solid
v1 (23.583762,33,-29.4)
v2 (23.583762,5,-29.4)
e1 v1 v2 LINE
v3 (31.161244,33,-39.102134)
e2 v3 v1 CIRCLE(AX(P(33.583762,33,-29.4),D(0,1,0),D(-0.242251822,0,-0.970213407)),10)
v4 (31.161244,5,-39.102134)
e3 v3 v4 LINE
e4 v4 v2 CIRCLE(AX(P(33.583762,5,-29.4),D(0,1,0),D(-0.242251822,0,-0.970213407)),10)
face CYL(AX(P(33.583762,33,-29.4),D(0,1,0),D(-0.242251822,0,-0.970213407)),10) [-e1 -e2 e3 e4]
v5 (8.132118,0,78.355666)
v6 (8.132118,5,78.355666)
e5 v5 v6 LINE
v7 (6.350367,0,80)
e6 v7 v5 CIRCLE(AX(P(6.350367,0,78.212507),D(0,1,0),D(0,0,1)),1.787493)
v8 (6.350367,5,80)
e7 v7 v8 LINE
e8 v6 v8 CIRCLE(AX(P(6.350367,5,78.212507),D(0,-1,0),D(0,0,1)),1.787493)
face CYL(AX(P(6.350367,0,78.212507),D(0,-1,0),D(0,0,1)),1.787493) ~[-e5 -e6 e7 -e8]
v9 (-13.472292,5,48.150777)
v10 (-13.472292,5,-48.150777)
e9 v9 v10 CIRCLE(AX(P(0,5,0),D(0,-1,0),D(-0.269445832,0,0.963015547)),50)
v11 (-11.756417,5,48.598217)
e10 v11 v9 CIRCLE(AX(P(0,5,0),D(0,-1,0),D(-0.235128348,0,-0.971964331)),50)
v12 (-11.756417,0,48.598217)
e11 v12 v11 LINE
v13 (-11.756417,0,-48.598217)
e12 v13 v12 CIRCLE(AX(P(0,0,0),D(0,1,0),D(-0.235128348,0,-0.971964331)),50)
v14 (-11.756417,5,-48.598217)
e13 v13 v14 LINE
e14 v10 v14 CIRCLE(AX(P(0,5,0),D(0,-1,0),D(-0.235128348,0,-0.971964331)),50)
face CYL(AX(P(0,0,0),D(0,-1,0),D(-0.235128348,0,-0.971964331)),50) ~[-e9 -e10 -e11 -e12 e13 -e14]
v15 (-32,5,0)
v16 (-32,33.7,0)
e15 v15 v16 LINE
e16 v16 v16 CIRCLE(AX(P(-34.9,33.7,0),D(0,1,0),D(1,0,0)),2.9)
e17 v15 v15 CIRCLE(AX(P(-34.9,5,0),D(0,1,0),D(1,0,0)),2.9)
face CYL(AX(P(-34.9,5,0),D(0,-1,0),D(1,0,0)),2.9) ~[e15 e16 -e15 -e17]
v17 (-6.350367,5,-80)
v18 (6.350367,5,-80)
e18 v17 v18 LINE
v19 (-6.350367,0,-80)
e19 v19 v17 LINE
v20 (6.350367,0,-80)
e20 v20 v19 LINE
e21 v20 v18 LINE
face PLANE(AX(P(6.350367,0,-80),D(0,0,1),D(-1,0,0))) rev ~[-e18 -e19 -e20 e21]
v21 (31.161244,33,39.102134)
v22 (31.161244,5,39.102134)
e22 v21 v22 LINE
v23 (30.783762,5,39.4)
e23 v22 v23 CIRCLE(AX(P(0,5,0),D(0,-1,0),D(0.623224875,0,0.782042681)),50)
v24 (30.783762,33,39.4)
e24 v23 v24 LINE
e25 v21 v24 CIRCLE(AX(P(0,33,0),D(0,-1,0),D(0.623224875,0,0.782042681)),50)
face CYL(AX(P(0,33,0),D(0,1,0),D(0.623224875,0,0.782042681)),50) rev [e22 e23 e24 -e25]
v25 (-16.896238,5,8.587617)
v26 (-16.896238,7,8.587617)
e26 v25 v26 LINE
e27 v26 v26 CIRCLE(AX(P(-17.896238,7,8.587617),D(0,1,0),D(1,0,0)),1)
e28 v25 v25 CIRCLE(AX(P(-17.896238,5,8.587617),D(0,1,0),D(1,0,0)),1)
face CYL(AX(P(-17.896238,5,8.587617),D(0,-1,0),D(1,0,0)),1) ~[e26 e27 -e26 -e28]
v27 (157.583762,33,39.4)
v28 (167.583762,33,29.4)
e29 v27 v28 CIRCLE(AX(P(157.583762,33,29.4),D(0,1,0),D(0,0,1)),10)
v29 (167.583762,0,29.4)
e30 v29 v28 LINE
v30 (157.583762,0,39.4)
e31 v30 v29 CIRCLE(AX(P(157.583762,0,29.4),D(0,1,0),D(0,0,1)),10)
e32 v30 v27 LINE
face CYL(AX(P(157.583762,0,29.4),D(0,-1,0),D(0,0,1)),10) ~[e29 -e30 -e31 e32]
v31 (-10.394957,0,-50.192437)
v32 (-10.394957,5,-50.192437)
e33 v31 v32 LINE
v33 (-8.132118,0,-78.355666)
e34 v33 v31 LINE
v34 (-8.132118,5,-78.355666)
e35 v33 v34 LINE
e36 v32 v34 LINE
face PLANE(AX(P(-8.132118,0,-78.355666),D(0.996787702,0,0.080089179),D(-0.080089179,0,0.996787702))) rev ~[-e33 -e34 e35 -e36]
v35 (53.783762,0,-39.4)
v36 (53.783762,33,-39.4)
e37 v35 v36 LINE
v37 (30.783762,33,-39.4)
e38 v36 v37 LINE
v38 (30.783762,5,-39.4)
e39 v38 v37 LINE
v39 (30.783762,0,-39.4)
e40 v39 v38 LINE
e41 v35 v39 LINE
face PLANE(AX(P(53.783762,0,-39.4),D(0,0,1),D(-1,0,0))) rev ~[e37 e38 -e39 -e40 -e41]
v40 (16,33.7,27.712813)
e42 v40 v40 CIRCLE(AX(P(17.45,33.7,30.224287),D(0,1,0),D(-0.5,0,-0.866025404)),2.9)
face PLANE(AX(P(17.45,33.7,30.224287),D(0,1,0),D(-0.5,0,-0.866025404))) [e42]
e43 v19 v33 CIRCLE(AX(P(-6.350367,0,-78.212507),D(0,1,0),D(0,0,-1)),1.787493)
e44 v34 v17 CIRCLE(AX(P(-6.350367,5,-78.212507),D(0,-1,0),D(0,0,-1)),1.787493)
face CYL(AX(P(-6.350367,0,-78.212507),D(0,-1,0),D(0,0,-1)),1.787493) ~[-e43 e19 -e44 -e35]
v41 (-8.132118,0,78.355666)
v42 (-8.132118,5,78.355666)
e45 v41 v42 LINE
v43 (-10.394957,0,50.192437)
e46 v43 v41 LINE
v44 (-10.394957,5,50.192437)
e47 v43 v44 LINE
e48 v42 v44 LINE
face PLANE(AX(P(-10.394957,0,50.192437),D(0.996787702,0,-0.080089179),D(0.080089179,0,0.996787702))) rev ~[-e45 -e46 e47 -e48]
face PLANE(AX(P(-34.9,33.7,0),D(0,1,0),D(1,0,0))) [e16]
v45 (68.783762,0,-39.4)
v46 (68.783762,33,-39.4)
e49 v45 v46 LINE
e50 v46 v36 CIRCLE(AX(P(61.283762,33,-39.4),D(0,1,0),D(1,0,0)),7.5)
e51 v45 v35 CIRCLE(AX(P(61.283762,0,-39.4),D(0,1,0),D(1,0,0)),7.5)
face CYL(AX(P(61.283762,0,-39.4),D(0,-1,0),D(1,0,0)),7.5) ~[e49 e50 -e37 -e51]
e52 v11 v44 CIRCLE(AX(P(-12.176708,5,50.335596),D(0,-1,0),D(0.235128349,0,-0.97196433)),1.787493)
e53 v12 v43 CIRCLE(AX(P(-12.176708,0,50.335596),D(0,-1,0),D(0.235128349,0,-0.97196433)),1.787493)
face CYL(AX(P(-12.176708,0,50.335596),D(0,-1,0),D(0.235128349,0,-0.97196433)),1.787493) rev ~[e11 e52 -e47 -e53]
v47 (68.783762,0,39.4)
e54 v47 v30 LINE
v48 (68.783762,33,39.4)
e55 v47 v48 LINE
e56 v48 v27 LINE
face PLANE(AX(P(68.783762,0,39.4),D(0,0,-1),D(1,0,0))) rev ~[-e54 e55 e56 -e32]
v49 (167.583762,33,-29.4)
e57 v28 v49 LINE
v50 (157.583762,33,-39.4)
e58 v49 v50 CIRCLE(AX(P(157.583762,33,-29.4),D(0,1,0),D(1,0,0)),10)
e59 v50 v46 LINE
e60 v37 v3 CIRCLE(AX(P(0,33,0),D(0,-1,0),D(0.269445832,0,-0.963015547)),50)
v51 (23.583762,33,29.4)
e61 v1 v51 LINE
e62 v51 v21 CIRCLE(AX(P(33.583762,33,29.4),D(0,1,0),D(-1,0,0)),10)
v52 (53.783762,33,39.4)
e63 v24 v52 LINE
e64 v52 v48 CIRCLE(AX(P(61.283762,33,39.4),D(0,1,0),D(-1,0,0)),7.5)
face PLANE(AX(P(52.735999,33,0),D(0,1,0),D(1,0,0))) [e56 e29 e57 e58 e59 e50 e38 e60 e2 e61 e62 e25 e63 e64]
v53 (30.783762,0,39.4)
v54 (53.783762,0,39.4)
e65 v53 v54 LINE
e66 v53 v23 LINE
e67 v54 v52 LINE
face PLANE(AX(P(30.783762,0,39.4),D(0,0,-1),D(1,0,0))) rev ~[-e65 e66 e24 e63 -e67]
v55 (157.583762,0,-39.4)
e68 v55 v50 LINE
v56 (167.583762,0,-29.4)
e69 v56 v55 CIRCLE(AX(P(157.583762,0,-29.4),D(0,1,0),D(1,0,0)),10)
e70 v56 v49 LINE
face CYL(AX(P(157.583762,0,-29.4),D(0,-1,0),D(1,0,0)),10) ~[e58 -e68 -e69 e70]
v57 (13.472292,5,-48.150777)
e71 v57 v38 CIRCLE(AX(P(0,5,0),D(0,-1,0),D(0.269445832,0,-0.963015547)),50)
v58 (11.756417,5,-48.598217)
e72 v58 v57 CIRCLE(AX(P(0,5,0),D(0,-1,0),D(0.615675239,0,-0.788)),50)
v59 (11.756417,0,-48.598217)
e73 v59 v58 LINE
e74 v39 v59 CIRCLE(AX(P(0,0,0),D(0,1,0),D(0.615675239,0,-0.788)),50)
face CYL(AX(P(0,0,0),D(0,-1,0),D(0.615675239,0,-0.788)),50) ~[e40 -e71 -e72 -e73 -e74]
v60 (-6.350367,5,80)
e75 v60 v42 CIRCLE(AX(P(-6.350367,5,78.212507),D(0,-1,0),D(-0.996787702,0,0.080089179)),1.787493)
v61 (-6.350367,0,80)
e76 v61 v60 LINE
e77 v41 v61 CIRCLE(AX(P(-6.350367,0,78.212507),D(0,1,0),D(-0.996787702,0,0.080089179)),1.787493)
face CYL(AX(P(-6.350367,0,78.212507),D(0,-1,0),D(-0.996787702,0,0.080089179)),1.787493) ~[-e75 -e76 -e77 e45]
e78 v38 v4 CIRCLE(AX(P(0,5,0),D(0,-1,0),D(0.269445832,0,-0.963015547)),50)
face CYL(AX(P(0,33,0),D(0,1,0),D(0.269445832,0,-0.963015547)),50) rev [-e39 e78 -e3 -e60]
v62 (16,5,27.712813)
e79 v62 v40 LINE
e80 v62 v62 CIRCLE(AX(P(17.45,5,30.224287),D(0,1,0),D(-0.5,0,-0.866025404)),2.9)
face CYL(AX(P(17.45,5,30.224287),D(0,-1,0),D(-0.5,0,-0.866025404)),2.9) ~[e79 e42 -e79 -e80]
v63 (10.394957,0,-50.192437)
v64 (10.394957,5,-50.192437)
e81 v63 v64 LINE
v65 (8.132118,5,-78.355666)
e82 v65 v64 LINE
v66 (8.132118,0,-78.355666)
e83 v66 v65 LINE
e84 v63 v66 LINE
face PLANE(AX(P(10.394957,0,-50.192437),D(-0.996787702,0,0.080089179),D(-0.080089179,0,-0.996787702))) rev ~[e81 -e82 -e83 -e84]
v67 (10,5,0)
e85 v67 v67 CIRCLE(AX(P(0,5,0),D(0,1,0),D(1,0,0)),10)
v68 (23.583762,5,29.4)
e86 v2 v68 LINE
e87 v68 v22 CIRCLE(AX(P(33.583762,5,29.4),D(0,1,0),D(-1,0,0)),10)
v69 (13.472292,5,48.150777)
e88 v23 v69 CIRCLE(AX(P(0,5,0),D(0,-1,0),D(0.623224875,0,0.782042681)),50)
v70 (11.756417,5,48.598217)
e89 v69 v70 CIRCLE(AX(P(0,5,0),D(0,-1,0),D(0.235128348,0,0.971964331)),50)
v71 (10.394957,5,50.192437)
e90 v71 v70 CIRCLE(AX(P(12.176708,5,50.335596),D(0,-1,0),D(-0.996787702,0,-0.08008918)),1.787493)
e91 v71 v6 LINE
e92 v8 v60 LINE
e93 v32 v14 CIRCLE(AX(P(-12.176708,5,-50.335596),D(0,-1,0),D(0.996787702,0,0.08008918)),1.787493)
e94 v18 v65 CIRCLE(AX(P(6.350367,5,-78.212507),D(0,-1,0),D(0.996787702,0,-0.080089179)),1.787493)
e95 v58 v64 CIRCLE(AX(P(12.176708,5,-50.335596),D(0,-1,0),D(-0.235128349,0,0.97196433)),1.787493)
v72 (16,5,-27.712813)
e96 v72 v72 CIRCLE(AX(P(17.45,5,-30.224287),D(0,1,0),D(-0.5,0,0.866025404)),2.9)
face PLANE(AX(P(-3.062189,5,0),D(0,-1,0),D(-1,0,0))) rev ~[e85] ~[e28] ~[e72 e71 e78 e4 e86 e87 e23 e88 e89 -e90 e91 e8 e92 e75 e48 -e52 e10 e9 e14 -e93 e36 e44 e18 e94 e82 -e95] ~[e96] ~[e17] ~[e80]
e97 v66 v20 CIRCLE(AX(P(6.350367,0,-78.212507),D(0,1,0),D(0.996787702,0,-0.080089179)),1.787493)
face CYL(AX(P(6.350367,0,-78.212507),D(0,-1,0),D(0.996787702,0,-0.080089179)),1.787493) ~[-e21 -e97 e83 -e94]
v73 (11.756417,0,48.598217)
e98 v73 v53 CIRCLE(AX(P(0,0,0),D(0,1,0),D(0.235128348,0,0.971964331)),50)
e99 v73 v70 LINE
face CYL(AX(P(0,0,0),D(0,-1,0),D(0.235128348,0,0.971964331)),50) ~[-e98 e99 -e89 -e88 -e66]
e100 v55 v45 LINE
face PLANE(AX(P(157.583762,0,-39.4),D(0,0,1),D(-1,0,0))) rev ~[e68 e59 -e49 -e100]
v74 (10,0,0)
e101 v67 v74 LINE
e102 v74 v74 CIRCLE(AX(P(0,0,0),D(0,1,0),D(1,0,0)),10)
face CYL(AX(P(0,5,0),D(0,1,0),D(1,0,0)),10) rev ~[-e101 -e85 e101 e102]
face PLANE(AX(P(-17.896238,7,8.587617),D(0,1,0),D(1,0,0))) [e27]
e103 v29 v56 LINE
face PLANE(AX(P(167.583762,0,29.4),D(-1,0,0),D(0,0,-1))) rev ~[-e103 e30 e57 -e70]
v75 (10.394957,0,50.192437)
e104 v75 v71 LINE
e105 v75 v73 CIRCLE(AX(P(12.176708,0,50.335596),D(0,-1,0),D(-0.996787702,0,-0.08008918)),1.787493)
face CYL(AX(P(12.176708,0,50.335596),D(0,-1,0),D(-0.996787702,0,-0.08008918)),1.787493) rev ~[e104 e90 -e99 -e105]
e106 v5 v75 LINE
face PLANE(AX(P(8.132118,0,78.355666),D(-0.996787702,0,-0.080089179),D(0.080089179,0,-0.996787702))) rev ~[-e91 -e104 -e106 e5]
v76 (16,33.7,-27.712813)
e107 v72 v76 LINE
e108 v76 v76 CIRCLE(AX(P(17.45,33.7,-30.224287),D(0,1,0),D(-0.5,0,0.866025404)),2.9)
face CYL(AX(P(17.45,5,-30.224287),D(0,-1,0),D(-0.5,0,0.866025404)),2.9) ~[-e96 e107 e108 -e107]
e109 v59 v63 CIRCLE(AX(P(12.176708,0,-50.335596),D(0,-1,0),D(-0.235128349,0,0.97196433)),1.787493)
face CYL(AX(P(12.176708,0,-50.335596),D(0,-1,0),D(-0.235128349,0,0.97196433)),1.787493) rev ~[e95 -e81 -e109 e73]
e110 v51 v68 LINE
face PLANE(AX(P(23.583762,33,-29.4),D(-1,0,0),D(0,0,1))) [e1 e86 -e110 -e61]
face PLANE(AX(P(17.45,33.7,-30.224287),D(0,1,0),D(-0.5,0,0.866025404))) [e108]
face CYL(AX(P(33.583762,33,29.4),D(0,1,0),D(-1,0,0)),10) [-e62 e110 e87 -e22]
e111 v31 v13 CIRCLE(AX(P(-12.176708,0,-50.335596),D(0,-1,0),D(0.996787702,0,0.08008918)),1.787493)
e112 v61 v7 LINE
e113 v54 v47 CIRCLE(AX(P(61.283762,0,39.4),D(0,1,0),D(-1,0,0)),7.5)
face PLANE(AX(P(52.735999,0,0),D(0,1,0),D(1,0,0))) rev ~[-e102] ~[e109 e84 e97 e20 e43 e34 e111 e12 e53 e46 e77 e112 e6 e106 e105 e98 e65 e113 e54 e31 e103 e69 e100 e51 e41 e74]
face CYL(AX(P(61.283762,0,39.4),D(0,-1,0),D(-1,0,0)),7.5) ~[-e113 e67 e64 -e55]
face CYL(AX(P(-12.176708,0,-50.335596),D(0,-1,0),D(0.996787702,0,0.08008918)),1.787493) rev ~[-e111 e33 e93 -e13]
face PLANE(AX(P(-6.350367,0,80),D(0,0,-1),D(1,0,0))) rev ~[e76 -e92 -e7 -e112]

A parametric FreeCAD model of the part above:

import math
import FreeCAD as App
import Part
import Sketcher
from FreeCAD import Vector

doc = App.newDocument("Part")
body = doc.addObject("PartDesign::Body", "Body")

# Sketch on XZ plane
sketch1 = body.newObject("Sketcher::SketchObject", "Sketch")
sketch1.AttachmentSupport = (doc.getObject("XZ_Plane"), [""])
sketch1.MapMode = "FlatFace"
sketch1.addGeometry([
    Part.LineSegment(Vector(68.8, 39.4, 0), Vector(157.6, 39.4, 0)),  # 0
    Part.ArcOfCircle(Part.Circle(Vector(157.6, 29.4, 0), Vector(0, 0, 1), 10), math.radians(0), math.radians(90)),  # 1
    Part.LineSegment(Vector(167.6, 29.4, 0), Vector(167.6, -29.4, 0)),  # 2
    Part.ArcOfCircle(Part.Circle(Vector(157.6, -29.4, 0), Vector(0, 0, 1), 10), math.radians(-90), math.radians(0)),  # 3
    Part.LineSegment(Vector(157.6, -39.4, 0), Vector(68.8, -39.4, 0)),  # 4
    Part.ArcOfCircle(Part.Circle(Vector(61.3, -39.4, 0), Vector(0, 0, 1), 7.5), math.radians(180), math.radians(360)),  # 5
    Part.LineSegment(Vector(53.8, -39.4, 0), Vector(30.8, -39.4, 0)),  # 6
    Part.ArcOfCircle(Part.Circle(Vector(0, 0, 0), Vector(0, 0, 1), 50), math.radians(-76), math.radians(-52)),  # 7
    Part.ArcOfCircle(Part.Circle(Vector(12.2, -50.3, 0), Vector(0, 0, 1), 1.8), math.radians(104), math.radians(175)),  # 8
    Part.LineSegment(Vector(10.4, -50.2, 0), Vector(8.1, -78.4, 0)),  # 9
    Part.ArcOfCircle(Part.Circle(Vector(6.4, -78.2, 0), Vector(0, 0, 1), 1.8), math.radians(-90), math.radians(-5)),  # 10
    Part.LineSegment(Vector(6.4, -80, 0), Vector(-6.4, -80, 0)),  # 11
    Part.ArcOfCircle(Part.Circle(Vector(-6.4, -78.2, 0), Vector(0, 0, 1), 1.8), math.radians(-175), math.radians(-90)),  # 12
    Part.LineSegment(Vector(-8.1, -78.4, 0), Vector(-10.4, -50.2, 0)),  # 13
    Part.ArcOfCircle(Part.Circle(Vector(-12.2, -50.3, 0), Vector(0, 0, 1), 1.8), math.radians(5), math.radians(76)),  # 14
    Part.ArcOfCircle(Part.Circle(Vector(0, 0, 0), Vector(0, 0, 1), 50), math.radians(104), math.radians(256)),  # 15
    Part.ArcOfCircle(Part.Circle(Vector(-12.2, 50.3, 0), Vector(0, 0, 1), 1.8), math.radians(-76), math.radians(-5)),  # 16
    Part.LineSegment(Vector(-10.4, 50.2, 0), Vector(-8.1, 78.4, 0)),  # 17
    Part.ArcOfCircle(Part.Circle(Vector(-6.4, 78.2, 0), Vector(0, 0, 1), 1.8), math.radians(90), math.radians(175)),  # 18
    Part.LineSegment(Vector(-6.4, 80, 0), Vector(6.4, 80, 0)),  # 19
    Part.ArcOfCircle(Part.Circle(Vector(6.4, 78.2, 0), Vector(0, 0, 1), 1.8), math.radians(5), math.radians(90)),  # 20
    Part.LineSegment(Vector(8.1, 78.4, 0), Vector(10.4, 50.2, 0)),  # 21
    Part.ArcOfCircle(Part.Circle(Vector(12.2, 50.3, 0), Vector(0, 0, 1), 1.8), math.radians(-175), math.radians(-104)),  # 22
    Part.ArcOfCircle(Part.Circle(Vector(0, 0, 0), Vector(0, 0, 1), 50), math.radians(52), math.radians(76)),  # 23
    Part.LineSegment(Vector(30.8, 39.4, 0), Vector(53.8, 39.4, 0)),  # 24
    Part.ArcOfCircle(Part.Circle(Vector(61.3, 39.4, 0), Vector(0, 0, 1), 7.5), math.radians(0), math.radians(180)),  # 25
], False)
sketch1.addConstraint([
    Sketcher.Constraint("Tangent", 0, 2, 1, 2),
    Sketcher.Constraint("Tangent", 1, 1, 2, 1),
    Sketcher.Constraint("Tangent", 2, 2, 3, 2),
    Sketcher.Constraint("Tangent", 3, 1, 4, 1),
    Sketcher.Constraint("Coincident", 4, 2, 5, 2),
    Sketcher.Constraint("Coincident", 5, 1, 6, 1),
    Sketcher.Constraint("Coincident", 6, 2, 7, 2),
    Sketcher.Constraint("Tangent", 7, 1, 8, 1),
    Sketcher.Constraint("Tangent", 8, 2, 9, 1),
    Sketcher.Constraint("Tangent", 9, 2, 10, 2),
    Sketcher.Constraint("Tangent", 10, 1, 11, 1),
    Sketcher.Constraint("Tangent", 11, 2, 12, 2),
    Sketcher.Constraint("Tangent", 12, 1, 13, 1),
    Sketcher.Constraint("Tangent", 13, 2, 14, 1),
    Sketcher.Constraint("Tangent", 14, 2, 15, 2),
    Sketcher.Constraint("Tangent", 15, 1, 16, 1),
    Sketcher.Constraint("Tangent", 16, 2, 17, 1),
    Sketcher.Constraint("Tangent", 17, 2, 18, 2),
    Sketcher.Constraint("Tangent", 18, 1, 19, 1),
    Sketcher.Constraint("Tangent", 19, 2, 20, 2),
    Sketcher.Constraint("Tangent", 20, 1, 21, 1),
    Sketcher.Constraint("Tangent", 21, 2, 22, 1),
    Sketcher.Constraint("Tangent", 22, 2, 23, 2),
    Sketcher.Constraint("Coincident", 23, 1, 24, 1),
    Sketcher.Constraint("Coincident", 24, 2, 25, 2),
    Sketcher.Constraint("Coincident", 25, 1, 0, 1),
    Sketcher.Constraint("Horizontal", 0),
    Sketcher.Constraint("Vertical", 2),
    Sketcher.Constraint("Horizontal", 4),
    Sketcher.Constraint("Horizontal", 6),
    Sketcher.Constraint("Horizontal", 11),
    Sketcher.Constraint("Horizontal", 19),
    Sketcher.Constraint("Horizontal", 24),
    Sketcher.Constraint("Coincident", 7, 3, -1, 1),
    Sketcher.Constraint("Coincident", 15, 3, -1, 1),
    Sketcher.Constraint("Coincident", 23, 3, -1, 1),
    Sketcher.Constraint("Equal", 1, 3),
    Sketcher.Constraint("Equal", 8, 10),
    Sketcher.Constraint("Equal", 10, 12),
    Sketcher.Constraint("Equal", 12, 14),
    Sketcher.Constraint("Equal", 7, 15),
    Sketcher.Constraint("Equal", 14, 16),
    Sketcher.Constraint("Equal", 16, 18),
    Sketcher.Constraint("Equal", 18, 20),
    Sketcher.Constraint("Equal", 20, 22),
    Sketcher.Constraint("Equal", 15, 23),
    Sketcher.Constraint("Equal", 5, 25),
    Sketcher.Constraint("Symmetric", 10, 3, 18, 3, -1, 1),
    Sketcher.Constraint("Symmetric", 12, 1, 20, 1, -1, 1),
    Sketcher.Constraint("Symmetric", 9, 2, 12, 1, -2),
    Sketcher.Constraint("Symmetric", 5, 3, 25, 3, -1),
    Sketcher.Constraint("Parallel", 9, 17),
    Sketcher.Constraint("Horizontal", 25, 3, 0, 2),
    Sketcher.Constraint("Horizontal", 5, 3, 3, 1),
    Sketcher.Constraint("Horizontal", 4, 2, 5, 1),
    Sketcher.Constraint("Horizontal", 0, 2, 23, 1),
    Sketcher.Constraint("Radius", 1, 10.0),
    Sketcher.Constraint("Radius", 7, 50.0),
    Sketcher.Constraint("Radius", 5, 7.5),
    Sketcher.Constraint("DistanceX", 6, 2, 6, 1, 23.0),
    Sketcher.Constraint("DistanceX", 0, 1, 0, 2, 88.8),
    Sketcher.Constraint("DistanceY", 2, 2, 2, 1, 58.8),
    Sketcher.Constraint("DistanceY", 10, 1, -1, 1, 80.0),
    Sketcher.Constraint("Radius", 8, 1.787493),
    Sketcher.Constraint("DistanceX", 9, 2, 7, 1, 3.6243),
    Sketcher.Constraint("Distance", 9, 28.253989),
])
pad1 = body.newObject("PartDesign::Pad", "Pad")
pad1.Profile = sketch1
pad1.Length = 33
pad1.Reversed = True

# Sketch on XZ plane
sketch2 = body.newObject("Sketcher::SketchObject", "Sketch001")
sketch2.AttachmentSupport = (doc.getObject("XZ_Plane"), [""])
sketch2.MapMode = "FlatFace"
sketch2.AttachmentOffset = App.Placement(Vector(0, 0, -33), App.Rotation())
sketch2.addGeometry([
    Part.LineSegment(Vector(24, 29, 0), Vector(24, -29, 0)),  # 0
    Part.ArcOfCircle(Part.Circle(Vector(34, -29, 0), Vector(0, 0, 1), 10), math.radians(180), math.radians(256)),  # 1
    Part.ArcOfCircle(Part.Circle(Vector(0, 0, 0), Vector(0, 0, 1), 50), math.radians(-74), math.radians(-51)),  # 2
    Part.LineSegment(Vector(13, -48, 0), Vector(13, -85, 0)),  # 3
    Part.LineSegment(Vector(13, -85, 0), Vector(-13, -85, 0)),  # 4
    Part.LineSegment(Vector(-13, -85, 0), Vector(-13, -48, 0)),  # 5
    Part.ArcOfCircle(Part.Circle(Vector(0, 0, 0), Vector(0, 0, 1), 50), math.radians(106), math.radians(254)),  # 6
    Part.LineSegment(Vector(-13, 48, 0), Vector(-13, 85, 0)),  # 7
    Part.LineSegment(Vector(-13, 85, 0), Vector(13, 85, 0)),  # 8
    Part.LineSegment(Vector(13, 85, 0), Vector(13, 48, 0)),  # 9
    Part.ArcOfCircle(Part.Circle(Vector(0, 0, 0), Vector(0, 0, 1), 50), math.radians(51), math.radians(74)),  # 10
    Part.ArcOfCircle(Part.Circle(Vector(34, 29, 0), Vector(0, 0, 1), 10), math.radians(104), math.radians(180)),  # 11
], False)
sketch2.addConstraint([
    Sketcher.Constraint("Tangent", 0, 2, 1, 1),
    Sketcher.Constraint("Coincident", 1, 2, 2, 2),
    Sketcher.Constraint("Coincident", 2, 1, 3, 1),
    Sketcher.Constraint("Coincident", 3, 2, 4, 1),
    Sketcher.Constraint("Coincident", 4, 2, 5, 1),
    Sketcher.Constraint("Coincident", 5, 2, 6, 2),
    Sketcher.Constraint("Coincident", 6, 1, 7, 1),
    Sketcher.Constraint("Coincident", 7, 2, 8, 1),
    Sketcher.Constraint("Coincident", 8, 2, 9, 1),
    Sketcher.Constraint("Coincident", 9, 2, 10, 2),
    Sketcher.Constraint("Coincident", 10, 1, 11, 1),
    Sketcher.Constraint("Tangent", 11, 2, 0, 1),
    Sketcher.Constraint("Vertical", 0),
    Sketcher.Constraint("Vertical", 3),
    Sketcher.Constraint("Horizontal", 4),
    Sketcher.Constraint("Vertical", 5),
    Sketcher.Constraint("Vertical", 7),
    Sketcher.Constraint("Horizontal", 8),
    Sketcher.Constraint("Vertical", 9),
    Sketcher.Constraint("Coincident", 2, 3, -1, 1),
    Sketcher.Constraint("Coincident", 6, 3, -1, 1),
    Sketcher.Constraint("Coincident", 10, 3, -1, 1),
    Sketcher.Constraint("Equal", 2, 6),
    Sketcher.Constraint("Equal", 6, 10),
    Sketcher.Constraint("Equal", 1, 11),
    Sketcher.Constraint("Symmetric", 3, 2, 7, 2, -1, 1),
    Sketcher.Constraint("Horizontal", 2, 1, 5, 2),
    Sketcher.Constraint("Horizontal", 6, 1, 9, 2),
    Sketcher.Constraint("Vertical", 1, 2, 10, 1),
    Sketcher.Constraint("Radius", 1, 10.0),
    Sketcher.Constraint("Radius", 2, 50.0),
    Sketcher.Constraint("DistanceY", 0, 2, 0, 1, 58.8),
    Sketcher.Constraint("DistanceY", 3, 2, -1, 1, 85.250602),
    Sketcher.Constraint("DistanceX", 4, 2, 4, 1, 26.944583),
    Sketcher.Constraint("DistanceX", -1, 1, 1, 3, 33.583762),
])
pocket1 = body.newObject("PartDesign::Pocket", "Pocket")
pocket1.Profile = sketch2
pocket1.Length = 28
pocket1.Reversed = True

# Sketch on XZ plane
sketch3 = body.newObject("Sketcher::SketchObject", "Sketch002")
sketch3.AttachmentSupport = (doc.getObject("XZ_Plane"), [""])
sketch3.MapMode = "FlatFace"
sketch3.AttachmentOffset = App.Placement(Vector(0, 0, -5), App.Rotation())
sketch3.addGeometry(Part.Circle(Vector(0, 0, 0), Vector(0, 0, 1), 10), False)
sketch3.addConstraint([
    Sketcher.Constraint("Coincident", 0, 3, -1, 1),
    Sketcher.Constraint("Diameter", 0, 20.0),
])
pocket2 = body.newObject("PartDesign::Pocket", "Pocket001")
pocket2.Profile = sketch3
pocket2.Type = "ThroughAll"
pocket2.Reversed = True

# Sketch on XZ plane
sketch4 = body.newObject("Sketcher::SketchObject", "Sketch003")
sketch4.AttachmentSupport = (doc.getObject("XZ_Plane"), [""])
sketch4.MapMode = "FlatFace"
sketch4.AttachmentOffset = App.Placement(Vector(0, 0, -5), App.Rotation())
sketch4.addGeometry(Part.Circle(Vector(-34.9, 0, 0), Vector(0, 0, 1), 2.9), False)
sketch4.addConstraint([
    Sketcher.Constraint("PointOnObject", 0, 3, -1),
    Sketcher.Constraint("Diameter", 0, 5.8),
    Sketcher.Constraint("DistanceX", 0, 3, -1, 1, 34.9),
])
pad2 = body.newObject("PartDesign::Pad", "Pad001")
pad2.Profile = sketch4
pad2.Length = 28.7
pad2.Reversed = True
doc.recompute()

polarpattern = body.newObject("PartDesign::PolarPattern", "PolarPattern")
polarpattern.Originals = [pad2]
polarpattern.Axis = (doc.getObject("Y_Axis"), [""])
polarpattern.Angle = 360
polarpattern.Occurrences = 3
body.Tip = polarpattern

# Sketch on XZ plane
sketch5 = body.newObject("Sketcher::SketchObject", "Sketch004")
sketch5.AttachmentSupport = (doc.getObject("XZ_Plane"), [""])
sketch5.MapMode = "FlatFace"
sketch5.AttachmentOffset = App.Placement(Vector(0, 0, -5), App.Rotation())
sketch5.addGeometry(Part.Circle(Vector(-17.9, 8.6, 0), Vector(0, 0, 1), 1), False)
sketch5.addConstraint([
    Sketcher.Constraint("Diameter", 0, 2.0),
    Sketcher.Constraint("DistanceX", 0, 3, -1, 1, 17.896238),
    Sketcher.Constraint("DistanceY", -1, 1, 0, 3, 8.587617),
])
pad3 = body.newObject("PartDesign::Pad", "Pad002")
pad3.Profile = sketch5
pad3.Length = 2
pad3.Reversed = True

doc.recompute()
